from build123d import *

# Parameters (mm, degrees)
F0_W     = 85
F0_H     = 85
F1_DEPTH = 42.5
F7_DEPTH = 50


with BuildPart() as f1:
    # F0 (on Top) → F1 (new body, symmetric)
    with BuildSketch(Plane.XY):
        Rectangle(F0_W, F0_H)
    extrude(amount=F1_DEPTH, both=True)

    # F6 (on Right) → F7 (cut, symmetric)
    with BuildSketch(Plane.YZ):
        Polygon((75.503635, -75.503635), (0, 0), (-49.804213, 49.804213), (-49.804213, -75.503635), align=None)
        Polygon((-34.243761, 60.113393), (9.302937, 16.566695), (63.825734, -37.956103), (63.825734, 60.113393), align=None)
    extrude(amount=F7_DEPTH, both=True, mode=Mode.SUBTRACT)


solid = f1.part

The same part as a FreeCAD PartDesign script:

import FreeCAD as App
import Part
import Sketcher

doc = App.newDocument("Part")
body = doc.addObject("PartDesign::Body", "Body")

# Sketch on XY plane
sketch1 = body.newObject("Sketcher::SketchObject", "Sketch")
sketch1.AttachmentSupport = (doc.getObject("XY_Plane"), [""])
sketch1.MapMode = "FlatFace"
sketch1.addGeometry(Part.LineSegment(App.Vector(-42.5, 42.5, 0), App.Vector(-42.5, -42.5, 0)), False)
sketch1.addGeometry(Part.LineSegment(App.Vector(-42.5, -42.5, 0), App.Vector(42.5, -42.5, 0)), False)
sketch1.addGeometry(Part.LineSegment(App.Vector(42.5, -42.5, 0), App.Vector(42.5, 42.5, 0)), False)
sketch1.addGeometry(Part.LineSegment(App.Vector(42.5, 42.5, 0), App.Vector(-42.5, 42.5, 0)), False)
sketch1.addConstraint(Sketcher.Constraint("Coincident", 0, 2, 1, 1))
sketch1.addConstraint(Sketcher.Constraint("Coincident", 1, 2, 2, 1))
sketch1.addConstraint(Sketcher.Constraint("Coincident", 2, 2, 3, 1))
sketch1.addConstraint(Sketcher.Constraint("Coincident", 3, 2, 0, 1))
sketch1.addConstraint(Sketcher.Constraint("Vertical", 0))
sketch1.addConstraint(Sketcher.Constraint("Horizontal", 1))
sketch1.addConstraint(Sketcher.Constraint("Vertical", 2))
sketch1.addConstraint(Sketcher.Constraint("Horizontal", 3))
sketch1.addConstraint(Sketcher.Constraint("Symmetric", 0, 2, 2, 2, -1, 1))
sketch1.addConstraint(Sketcher.Constraint("Equal", 3, 0))
sketch1.addConstraint(Sketcher.Constraint("DistanceX", 1, 1, 1, 2, 85.0))
pad1 = body.newObject("PartDesign::Pad", "Pad")
pad1.Profile = sketch1
pad1.Length = 85
pad1.Midplane = True

# Sketch on YZ plane
sketch2 = body.newObject("Sketcher::SketchObject", "Sketch001")
sketch2.AttachmentSupport = (doc.getObject("YZ_Plane"), [""])
sketch2.MapMode = "FlatFace"
sketch2.addGeometry(Part.LineSegment(App.Vector(75.503635, -75.503635, 0), App.Vector(-49.804213, 49.804213, 0)), False)
sketch2.addGeometry(Part.LineSegment(App.Vector(-49.804213, 49.804213, 0), App.Vector(-49.804213, -75.503635, 0)), False)
sketch2.addGeometry(Part.LineSegment(App.Vector(-49.804213, -75.503635, 0), App.Vector(75.503635, -75.503635, 0)), False)
sketch2.addGeometry(Part.LineSegment(App.Vector(-34.243761, 60.113393, 0), App.Vector(9.302937, 16.566695, 0)), False)
sketch2.addGeometry(Part.LineSegment(App.Vector(9.302937, 16.566695, 0), App.Vector(63.825734, -37.956103, 0)), False)
sketch2.addGeometry(Part.LineSegment(App.Vector(63.825734, -37.956103, 0), App.Vector(63.825734, 60.113393, 0)), False)
sketch2.addGeometry(Part.LineSegment(App.Vector(63.825734, 60.113393, 0), App.Vector(-34.243761, 60.113393, 0)), False)
sketch2.addConstraint(Sketcher.Constraint("Coincident", 0, 2, 1, 1))
sketch2.addConstraint(Sketcher.Constraint("Coincident", 1, 2, 2, 1))
sketch2.addConstraint(Sketcher.Constraint("Coincident", 2, 2, 0, 1))
sketch2.addConstraint(Sketcher.Constraint("Coincident", 3, 2, 4, 1))
sketch2.addConstraint(Sketcher.Constraint("Coincident", 4, 2, 5, 1))
sketch2.addConstraint(Sketcher.Constraint("Coincident", 5, 2, 6, 1))
sketch2.addConstraint(Sketcher.Constraint("Coincident", 6, 2, 3, 1))
sketch2.addConstraint(Sketcher.Constraint("Vertical", 1))
sketch2.addConstraint(Sketcher.Constraint("Horizontal", 2))
sketch2.addConstraint(Sketcher.Constraint("Vertical", 5))
sketch2.addConstraint(Sketcher.Constraint("Horizontal", 6))
sketch2.addConstraint(Sketcher.Constraint("Parallel", 0, 3))
sketch2.addConstraint(Sketcher.Constraint("Parallel", 3, 4))
sketch2.addConstraint(Sketcher.Constraint("Equal", 2, 1))
sketch2.addConstraint(Sketcher.Constraint("DistanceX", 2, 1, 2, 2, 125.307848))
sketch2.addConstraint(Sketcher.Constraint("DistanceX", 3, 2, 2, 2, 66.200698))
sketch2.addConstraint(Sketcher.Constraint("DistanceX", 4, 2, 2, 2, 11.677901))
sketch2.addConstraint(Sketcher.Constraint("DistanceY", 3, 2, 5, 2, 43.546698))
sketch2.addConstraint(Sketcher.Constraint("DistanceX", 6, 2, -1, 1, 34.243761))
sketch2.addConstraint(Sketcher.Constraint("DistanceY", 1, 2, 3, 2, 92.07033))
sketch2.addConstraint(Sketcher.Constraint("DistanceY", -1, 1, 0, 2, 49.804213))
pocket1 = body.newObject("PartDesign::Pocket", "Pocket")
pocket1.Profile = sketch2
pocket1.Length = 100
pocket1.Midplane = True

doc.recompute()
